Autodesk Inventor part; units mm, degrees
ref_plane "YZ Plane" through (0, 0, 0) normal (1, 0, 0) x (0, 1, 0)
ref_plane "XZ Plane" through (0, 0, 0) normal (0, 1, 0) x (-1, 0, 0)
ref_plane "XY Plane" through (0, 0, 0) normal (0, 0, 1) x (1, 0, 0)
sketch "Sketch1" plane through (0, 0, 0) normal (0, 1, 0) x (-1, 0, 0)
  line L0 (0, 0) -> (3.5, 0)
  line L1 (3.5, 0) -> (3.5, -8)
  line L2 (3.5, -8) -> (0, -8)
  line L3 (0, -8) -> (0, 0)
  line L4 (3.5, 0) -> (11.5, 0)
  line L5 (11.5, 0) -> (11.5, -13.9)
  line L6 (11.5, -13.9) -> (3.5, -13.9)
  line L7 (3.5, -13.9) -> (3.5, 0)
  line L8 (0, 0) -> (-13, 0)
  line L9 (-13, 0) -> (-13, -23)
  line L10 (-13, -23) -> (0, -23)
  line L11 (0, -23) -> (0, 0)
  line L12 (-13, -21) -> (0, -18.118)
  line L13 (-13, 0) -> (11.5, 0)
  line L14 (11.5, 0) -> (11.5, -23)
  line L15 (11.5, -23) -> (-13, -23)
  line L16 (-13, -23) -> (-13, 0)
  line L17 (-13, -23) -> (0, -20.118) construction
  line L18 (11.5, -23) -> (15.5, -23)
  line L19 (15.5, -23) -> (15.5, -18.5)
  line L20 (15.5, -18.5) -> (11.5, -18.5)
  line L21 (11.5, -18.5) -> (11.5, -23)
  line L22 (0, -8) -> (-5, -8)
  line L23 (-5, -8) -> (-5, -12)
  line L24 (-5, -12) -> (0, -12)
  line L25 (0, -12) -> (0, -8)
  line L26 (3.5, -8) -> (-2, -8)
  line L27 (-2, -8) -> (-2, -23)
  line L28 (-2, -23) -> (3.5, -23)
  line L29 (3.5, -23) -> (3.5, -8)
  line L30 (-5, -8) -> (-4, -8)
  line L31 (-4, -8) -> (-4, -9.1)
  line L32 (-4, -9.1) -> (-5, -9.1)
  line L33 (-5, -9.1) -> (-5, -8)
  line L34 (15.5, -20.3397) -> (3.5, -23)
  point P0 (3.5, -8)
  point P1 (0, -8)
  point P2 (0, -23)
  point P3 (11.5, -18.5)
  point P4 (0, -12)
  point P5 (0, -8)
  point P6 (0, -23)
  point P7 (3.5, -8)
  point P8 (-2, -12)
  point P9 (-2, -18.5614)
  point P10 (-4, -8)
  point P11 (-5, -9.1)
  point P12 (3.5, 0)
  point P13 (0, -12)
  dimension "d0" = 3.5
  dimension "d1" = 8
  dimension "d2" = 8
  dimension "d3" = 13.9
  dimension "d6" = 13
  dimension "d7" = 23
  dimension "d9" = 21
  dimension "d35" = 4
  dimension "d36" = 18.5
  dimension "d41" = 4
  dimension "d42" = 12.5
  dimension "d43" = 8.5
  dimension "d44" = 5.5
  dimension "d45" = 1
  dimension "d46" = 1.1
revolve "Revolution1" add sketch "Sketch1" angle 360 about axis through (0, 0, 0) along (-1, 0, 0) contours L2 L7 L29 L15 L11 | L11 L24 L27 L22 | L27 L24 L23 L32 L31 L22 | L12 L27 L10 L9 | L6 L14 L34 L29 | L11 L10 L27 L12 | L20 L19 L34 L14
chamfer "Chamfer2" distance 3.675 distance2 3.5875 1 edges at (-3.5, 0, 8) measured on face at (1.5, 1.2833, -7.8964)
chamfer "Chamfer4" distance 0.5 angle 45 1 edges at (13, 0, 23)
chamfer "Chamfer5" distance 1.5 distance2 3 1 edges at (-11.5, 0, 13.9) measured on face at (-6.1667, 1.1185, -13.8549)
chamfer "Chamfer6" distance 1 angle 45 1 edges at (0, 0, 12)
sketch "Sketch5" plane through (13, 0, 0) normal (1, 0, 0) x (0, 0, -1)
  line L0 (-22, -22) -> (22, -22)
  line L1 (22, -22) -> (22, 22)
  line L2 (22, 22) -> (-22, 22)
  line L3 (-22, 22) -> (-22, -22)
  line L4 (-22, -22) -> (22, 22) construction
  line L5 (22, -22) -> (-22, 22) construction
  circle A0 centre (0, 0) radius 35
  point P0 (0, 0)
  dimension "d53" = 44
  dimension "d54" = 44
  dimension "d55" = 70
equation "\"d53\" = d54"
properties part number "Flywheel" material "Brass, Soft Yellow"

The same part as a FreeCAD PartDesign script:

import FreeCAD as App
import Part
import Sketcher
from FreeCAD import Vector
Q = App.Units.Quantity


def edges_at(feature, points):
    """Names of the edges that pass closest to the given points."""
    edges = feature.Shape.Edges
    near = lambda p: min(range(len(edges)), key=lambda i: edges[i].distToShape(Part.Vertex(*p))[0])
    return sorted({f"Edge{near(p) + 1}" for p in points})

doc = App.newDocument("Part")
body = doc.addObject("PartDesign::Body", "Body")

sketch1 = doc.addObject("Sketcher::SketchObject", "Sketch")
body.addObject(sketch1)
sketch1.AttachmentSupport = (doc.XZ_Plane, [""])
sketch1.MapMode = "FlatFace"
sketch1.addGeometry([
    Part.LineSegment(Vector(-3.5, -8, 0), Vector(4, -8, 0)),
    Part.LineSegment(Vector(4, -8, 0), Vector(4, -9.1, 0)),
    Part.LineSegment(Vector(4, -9.1, 0), Vector(5, -9.1, 0)),
    Part.LineSegment(Vector(5, -9.1, 0), Vector(5, -12, 0)),
    Part.LineSegment(Vector(5, -12, 0), Vector(0, -12, 0)),
    Part.LineSegment(Vector(0, -12, 0), Vector(0, -18.1, 0)),
    Part.LineSegment(Vector(0, -18.1, 0), Vector(13, -21, 0)),
    Part.LineSegment(Vector(13, -21, 0), Vector(13, -23, 0)),
    Part.LineSegment(Vector(13, -23, 0), Vector(-3.5, -23, 0)),
    Part.LineSegment(Vector(-3.5, -23, 0), Vector(-15.5, -20.3, 0)),
    Part.LineSegment(Vector(-15.5, -20.3, 0), Vector(-15.5, -18.5, 0)),
    Part.LineSegment(Vector(-15.5, -18.5, 0), Vector(-11.5, -18.5, 0)),
    Part.LineSegment(Vector(-11.5, -18.5, 0), Vector(-11.5, -13.9, 0)),
    Part.LineSegment(Vector(-11.5, -13.9, 0), Vector(-3.5, -13.9, 0)),
    Part.LineSegment(Vector(-3.5, -13.9, 0), Vector(-3.5, -8, 0)),
], False)
sketch1.addConstraint([
    Sketcher.Constraint("Coincident", 0, 2, 1, 1),
    Sketcher.Constraint("Coincident", 1, 2, 2, 1),
    Sketcher.Constraint("Coincident", 2, 2, 3, 1),
    Sketcher.Constraint("Coincident", 3, 2, 4, 1),
    Sketcher.Constraint("Coincident", 4, 2, 5, 1),
    Sketcher.Constraint("Coincident", 5, 2, 6, 1),
    Sketcher.Constraint("Coincident", 6, 2, 7, 1),
    Sketcher.Constraint("Coincident", 7, 2, 8, 1),
    Sketcher.Constraint("Coincident", 8, 2, 9, 1),
    Sketcher.Constraint("Coincident", 9, 2, 10, 1),
    Sketcher.Constraint("Coincident", 10, 2, 11, 1),
    Sketcher.Constraint("Coincident", 11, 2, 12, 1),
    Sketcher.Constraint("Coincident", 12, 2, 13, 1),
    Sketcher.Constraint("Coincident", 13, 2, 14, 1),
    Sketcher.Constraint("Coincident", 14, 2, 0, 1),
    Sketcher.Constraint("Horizontal", 0),
    Sketcher.Constraint("Vertical", 1),
    Sketcher.Constraint("Horizontal", 2),
    Sketcher.Constraint("Vertical", 3),
    Sketcher.Constraint("Horizontal", 4),
    Sketcher.Constraint("Vertical", 5),
    Sketcher.Constraint("Vertical", 7),
    Sketcher.Constraint("Horizontal", 8),
    Sketcher.Constraint("Vertical", 10),
    Sketcher.Constraint("Horizontal", 11),
    Sketcher.Constraint("Vertical", 12),
    Sketcher.Constraint("Horizontal", 13),
    Sketcher.Constraint("Vertical", 14),
    Sketcher.Constraint("PointOnObject", 4, 2, -2),
    Sketcher.Constraint("Parallel", 6, 9),
    Sketcher.Constraint("Vertical", 8, 2, 13, 2),
    Sketcher.Constraint("DistanceX", 2, 1, 2, 2, Q("1 mm")),
    Sketcher.Constraint("DistanceX", 11, 1, 11, 2, Q("4 mm")),
    Sketcher.Constraint("DistanceX", 13, 1, 13, 2, Q("8 mm")),
    Sketcher.Constraint("DistanceY", 1, 2, 1, 1, Q("1.1 mm")),
    Sketcher.Constraint("DistanceX", -1, 1, 0, 2, Q("4 mm")),
    Sketcher.Constraint("DistanceY", 0, 2, -1, 1, Q("8 mm")),
    Sketcher.Constraint("DistanceX", -1, 1, 6, 2, Q("13 mm")),
    Sketcher.Constraint("DistanceY", 6, 2, -1, 1, Q("21 mm")),
    Sketcher.Constraint("DistanceY", 7, 2, -1, 1, Q("23 mm")),
    Sketcher.Constraint("Angle", 6, Q("-12.4999 deg")),
    Sketcher.Constraint("DistanceY", 3, 2, 0, 2, Q("4 mm")),
    Sketcher.Constraint("DistanceX", 8, 2, -1, 1, Q("3.5 mm")),
    Sketcher.Constraint("DistanceY", 10, 2, -1, 1, Q("18.5 mm")),
    Sketcher.Constraint("DistanceY", 12, 2, -1, 1, Q("13.9 mm")),
])
revolution = doc.addObject("PartDesign::Revolution", "Revolution")
body.addObject(revolution)
revolution.Profile = sketch1
revolution.ReferenceAxis = (sketch1, ["H_Axis"])
revolution.Angle = 360
doc.recompute()

chamfer = doc.addObject("PartDesign::Chamfer", "Chamfer")
body.addObject(chamfer)
chamfer.Base = (revolution, edges_at(revolution, [(-3.5, 0, 8)]))
chamfer.ChamferType = "Two distances"
chamfer.Size = 3.675
chamfer.Size2 = 3.5875
doc.recompute()

chamfer2 = doc.addObject("PartDesign::Chamfer", "Chamfer001")
body.addObject(chamfer2)
chamfer2.Base = (chamfer, edges_at(chamfer, [(13, 0, 23)]))
chamfer2.Size = 0.5
doc.recompute()

chamfer3 = doc.addObject("PartDesign::Chamfer", "Chamfer002")
body.addObject(chamfer3)
chamfer3.Base = (chamfer2, edges_at(chamfer2, [(-11.5, 0, 13.9)]))
chamfer3.ChamferType = "Two distances"
chamfer3.Size = 1.5
chamfer3.Size2 = 3
chamfer3.FlipDirection = True
doc.recompute()

chamfer4 = doc.addObject("PartDesign::Chamfer", "Chamfer003")
body.addObject(chamfer4)
chamfer4.Base = (chamfer3, edges_at(chamfer3, [(0, 0, 12)]))
chamfer4.Size = 1

doc.recompute()
